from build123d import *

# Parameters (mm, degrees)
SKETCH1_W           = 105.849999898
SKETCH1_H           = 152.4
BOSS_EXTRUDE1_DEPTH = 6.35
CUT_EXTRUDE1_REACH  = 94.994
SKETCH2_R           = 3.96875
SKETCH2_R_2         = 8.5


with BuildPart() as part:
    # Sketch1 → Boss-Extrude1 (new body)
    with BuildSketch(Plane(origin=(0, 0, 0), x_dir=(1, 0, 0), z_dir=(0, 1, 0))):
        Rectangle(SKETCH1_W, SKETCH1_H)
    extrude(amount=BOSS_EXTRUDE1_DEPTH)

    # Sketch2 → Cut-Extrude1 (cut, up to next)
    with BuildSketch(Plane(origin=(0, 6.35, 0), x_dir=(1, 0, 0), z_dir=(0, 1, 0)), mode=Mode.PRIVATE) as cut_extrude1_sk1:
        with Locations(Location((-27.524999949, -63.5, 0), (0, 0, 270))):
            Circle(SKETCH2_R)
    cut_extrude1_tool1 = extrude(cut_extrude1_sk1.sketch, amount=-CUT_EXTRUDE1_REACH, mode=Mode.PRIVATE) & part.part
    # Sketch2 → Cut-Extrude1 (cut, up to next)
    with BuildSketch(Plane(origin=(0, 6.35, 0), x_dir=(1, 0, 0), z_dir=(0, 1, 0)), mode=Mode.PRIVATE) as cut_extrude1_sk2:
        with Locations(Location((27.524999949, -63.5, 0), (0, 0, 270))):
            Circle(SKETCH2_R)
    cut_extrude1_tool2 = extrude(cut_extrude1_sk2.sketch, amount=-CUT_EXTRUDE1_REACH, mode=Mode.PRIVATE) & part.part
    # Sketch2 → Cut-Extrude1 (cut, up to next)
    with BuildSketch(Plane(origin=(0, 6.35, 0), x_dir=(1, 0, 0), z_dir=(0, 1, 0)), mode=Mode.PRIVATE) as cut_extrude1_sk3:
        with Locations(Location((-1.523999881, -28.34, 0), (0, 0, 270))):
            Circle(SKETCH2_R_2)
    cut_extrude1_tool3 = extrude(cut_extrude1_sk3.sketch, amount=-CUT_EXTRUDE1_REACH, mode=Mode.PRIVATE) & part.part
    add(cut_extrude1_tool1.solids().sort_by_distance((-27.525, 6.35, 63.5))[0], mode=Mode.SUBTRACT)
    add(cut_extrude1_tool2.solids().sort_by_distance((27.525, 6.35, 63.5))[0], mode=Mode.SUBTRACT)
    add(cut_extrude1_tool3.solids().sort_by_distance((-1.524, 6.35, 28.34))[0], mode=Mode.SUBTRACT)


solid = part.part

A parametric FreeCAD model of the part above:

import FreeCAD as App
import Part
import Sketcher

V = App.Vector
Q = App.Units.Quantity

doc = App.newDocument("Part")
body = doc.addObject("PartDesign::Body", "Body")

# Sketch on XZ plane
sketch1 = body.newObject("Sketcher::SketchObject", "Sketch")
sketch1.AttachmentSupport = (doc.getObject("XZ_Plane"), [""])
sketch1.MapMode = "FlatFace"
sketch1.addGeometry([
    Part.LineSegment(V(-53, -76, 0), V(-53, 76, 0)),
    Part.LineSegment(V(-53, 76, 0), V(53, 76, 0)),
    Part.LineSegment(V(53, 76, 0), V(53, -76, 0)),
    Part.LineSegment(V(53, -76, 0), V(-53, -76, 0)),
], False)
sketch1.addConstraint([
    Sketcher.Constraint("Coincident", 0, 2, 1, 1),
    Sketcher.Constraint("Coincident", 1, 2, 2, 1),
    Sketcher.Constraint("Coincident", 2, 2, 3, 1),
    Sketcher.Constraint("Coincident", 3, 2, 0, 1),
    Sketcher.Constraint("Vertical", 0),
    Sketcher.Constraint("Horizontal", 1),
    Sketcher.Constraint("Vertical", 2),
    Sketcher.Constraint("Horizontal", 3),
    Sketcher.Constraint("Symmetric", 0, 2, 2, 2, -1, 1),
    Sketcher.Constraint("DistanceY", 0, 1, 0, 2, Q("6 in")),
    Sketcher.Constraint("DistanceX", 1, 1, 1, 2, 105.85),
])
pad1 = body.newObject("PartDesign::Pad", "Pad")
pad1.Profile = sketch1
pad1.Length = Q("0.25 in")
pad1.Reversed = True

# Sketch on XZ plane
sketch2 = body.newObject("Sketcher::SketchObject", "Sketch001")
sketch2.AttachmentSupport = (doc.getObject("XZ_Plane"), [""])
sketch2.MapMode = "FlatFace"
sketch2.AttachmentOffset = App.Placement(V(0, 0, -0.25 * 25.4), App.Rotation())
sketch2.addGeometry(Part.Circle(V(-27.5, 63.5, 0), V(0, 0, 1), 4), False)
sketch2.addConstraint([
    Sketcher.Constraint("Diameter", 0, Q("0.3125 in")),
    Sketcher.Constraint("DistanceY", -1, 1, 0, 3, Q("2.5 in")),
    Sketcher.Constraint("DistanceX", 0, 3, -1, 1, 27.525),
])
pocket1 = body.newObject("PartDesign::Pocket", "Pocket")
pocket1.Profile = sketch2
pocket1.Type = "UpToFirst"
pocket1.Reversed = True

# Sketch on XZ plane
sketch3 = body.newObject("Sketcher::SketchObject", "Sketch002")
sketch3.AttachmentSupport = (doc.getObject("XZ_Plane"), [""])
sketch3.MapMode = "FlatFace"
sketch3.AttachmentOffset = App.Placement(V(0, 0, -0.25 * 25.4), App.Rotation())
sketch3.addGeometry(Part.Circle(V(27.5, 63.5, 0), V(0, 0, 1), 4), False)
sketch3.addConstraint([
    Sketcher.Constraint("Diameter", 0, Q("0.3125 in")),
    Sketcher.Constraint("DistanceY", -1, 1, 0, 3, Q("2.5 in")),
    Sketcher.Constraint("DistanceX", -1, 1, 0, 3, 27.525),
])
pocket2 = body.newObject("PartDesign::Pocket", "Pocket001")
pocket2.Profile = sketch3
pocket2.Type = "UpToFirst"
pocket2.Reversed = True

# Sketch on XZ plane
sketch4 = body.newObject("Sketcher::SketchObject", "Sketch003")
sketch4.AttachmentSupport = (doc.getObject("XZ_Plane"), [""])
sketch4.MapMode = "FlatFace"
sketch4.AttachmentOffset = App.Placement(V(0, 0, -0.25 * 25.4), App.Rotation())
sketch4.addGeometry(Part.Circle(V(-2, 28, 0), V(0, 0, 1), 8), False)
sketch4.addConstraint([
    Sketcher.Constraint("Diameter", 0, 17.0),
    Sketcher.Constraint("DistanceX", 0, 3, -1, 1, Q("0.06 in")),
    Sketcher.Constraint("DistanceY", -1, 1, 0, 3, 28.34),
])
pocket3 = body.newObject("PartDesign::Pocket", "Pocket002")
pocket3.Profile = sketch4
pocket3.Type = "UpToFirst"
pocket3.Reversed = True

doc.recompute()
